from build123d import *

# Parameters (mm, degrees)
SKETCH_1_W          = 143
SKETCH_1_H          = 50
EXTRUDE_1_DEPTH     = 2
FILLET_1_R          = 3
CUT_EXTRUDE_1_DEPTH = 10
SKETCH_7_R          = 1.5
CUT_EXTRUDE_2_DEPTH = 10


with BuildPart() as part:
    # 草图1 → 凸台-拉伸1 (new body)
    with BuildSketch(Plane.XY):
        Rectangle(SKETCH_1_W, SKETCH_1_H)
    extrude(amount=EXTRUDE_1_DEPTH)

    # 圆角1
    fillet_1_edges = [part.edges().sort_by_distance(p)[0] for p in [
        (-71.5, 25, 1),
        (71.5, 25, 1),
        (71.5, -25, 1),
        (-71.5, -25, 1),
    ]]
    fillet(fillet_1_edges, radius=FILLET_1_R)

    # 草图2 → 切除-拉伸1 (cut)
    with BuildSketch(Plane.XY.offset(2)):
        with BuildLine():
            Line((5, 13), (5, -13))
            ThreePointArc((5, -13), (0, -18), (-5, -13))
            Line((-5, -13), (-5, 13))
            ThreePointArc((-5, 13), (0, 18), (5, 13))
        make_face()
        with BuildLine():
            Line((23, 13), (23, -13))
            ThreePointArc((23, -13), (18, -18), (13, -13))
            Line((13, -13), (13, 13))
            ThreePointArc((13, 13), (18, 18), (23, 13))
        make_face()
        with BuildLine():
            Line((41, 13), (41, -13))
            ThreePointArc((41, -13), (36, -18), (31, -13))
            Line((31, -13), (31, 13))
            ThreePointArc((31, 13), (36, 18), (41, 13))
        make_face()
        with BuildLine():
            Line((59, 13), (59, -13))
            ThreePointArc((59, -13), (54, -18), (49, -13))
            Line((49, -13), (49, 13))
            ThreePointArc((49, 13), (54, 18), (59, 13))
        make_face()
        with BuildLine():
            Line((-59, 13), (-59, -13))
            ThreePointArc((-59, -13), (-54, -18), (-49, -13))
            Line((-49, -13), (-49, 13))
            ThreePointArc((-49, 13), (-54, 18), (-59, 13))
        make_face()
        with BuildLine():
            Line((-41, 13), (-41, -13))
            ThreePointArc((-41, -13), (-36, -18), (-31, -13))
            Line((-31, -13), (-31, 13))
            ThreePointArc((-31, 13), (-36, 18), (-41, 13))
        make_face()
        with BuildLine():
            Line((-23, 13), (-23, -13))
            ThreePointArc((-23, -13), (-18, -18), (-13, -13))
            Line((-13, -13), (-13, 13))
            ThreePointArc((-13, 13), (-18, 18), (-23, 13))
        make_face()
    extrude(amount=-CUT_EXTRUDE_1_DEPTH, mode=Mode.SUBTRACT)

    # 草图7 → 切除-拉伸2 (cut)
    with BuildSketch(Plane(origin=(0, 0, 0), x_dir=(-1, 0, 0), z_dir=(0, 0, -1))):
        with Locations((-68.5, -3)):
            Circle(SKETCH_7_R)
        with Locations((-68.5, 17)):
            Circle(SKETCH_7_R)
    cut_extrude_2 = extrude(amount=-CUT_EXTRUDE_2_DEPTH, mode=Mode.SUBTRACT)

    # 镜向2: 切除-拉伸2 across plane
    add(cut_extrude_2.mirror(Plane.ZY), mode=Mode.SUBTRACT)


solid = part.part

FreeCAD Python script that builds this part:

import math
import FreeCAD as App
import Part
import Sketcher
from FreeCAD import Vector


def edges_at(feature, points):
    """Names of the edges that pass closest to the given points."""
    edges = feature.Shape.Edges
    near = lambda p: min(range(len(edges)), key=lambda i: edges[i].distToShape(Part.Vertex(*p))[0])
    return sorted({f"Edge{near(p) + 1}" for p in points})

doc = App.newDocument("Part")
body = doc.addObject("PartDesign::Body", "Body")

sketch1 = body.newObject("Sketcher::SketchObject", "Sketch")
sketch1.AttachmentSupport = (doc.getObject("XY_Plane"), [""])
sketch1.MapMode = "FlatFace"
sketch1.addGeometry(Part.LineSegment(Vector(-72, 25, 0), Vector(-72, -25, 0)), False)
sketch1.addGeometry(Part.LineSegment(Vector(-72, -25, 0), Vector(72, -25, 0)), False)
sketch1.addGeometry(Part.LineSegment(Vector(72, -25, 0), Vector(72, 25, 0)), False)
sketch1.addGeometry(Part.LineSegment(Vector(72, 25, 0), Vector(-72, 25, 0)), False)
sketch1.addConstraint(Sketcher.Constraint("Coincident", 0, 2, 1, 1))
sketch1.addConstraint(Sketcher.Constraint("Coincident", 1, 2, 2, 1))
sketch1.addConstraint(Sketcher.Constraint("Coincident", 2, 2, 3, 1))
sketch1.addConstraint(Sketcher.Constraint("Coincident", 3, 2, 0, 1))
sketch1.addConstraint(Sketcher.Constraint("Vertical", 0))
sketch1.addConstraint(Sketcher.Constraint("Horizontal", 1))
sketch1.addConstraint(Sketcher.Constraint("Vertical", 2))
sketch1.addConstraint(Sketcher.Constraint("Horizontal", 3))
sketch1.addConstraint(Sketcher.Constraint("Symmetric", 0, 2, 2, 2, -1, 1))
sketch1.addConstraint(Sketcher.Constraint("DistanceX", 1, 1, 1, 2, 143.0))
sketch1.addConstraint(Sketcher.Constraint("DistanceY", 0, 2, 0, 1, 50.0))
pad1 = body.newObject("PartDesign::Pad", "Pad")
pad1.Profile = sketch1
pad1.Length = 2
doc.recompute()

fillet = body.newObject("PartDesign::Fillet", "Fillet")
fillet.Base = (pad1, edges_at(pad1, [
    (-71.5, 25, 1),
    (71.5, 25, 1),
    (71.5, -25, 1),
    (-71.5, -25, 1),
]))
fillet.Radius = 3

sketch2 = body.newObject("Sketcher::SketchObject", "Sketch001")
sketch2.AttachmentSupport = (doc.getObject("XY_Plane"), [""])
sketch2.MapMode = "FlatFace"
sketch2.AttachmentOffset = App.Placement(Vector(0, 0, 2), App.Rotation())
sketch2.addGeometry(Part.LineSegment(Vector(5, -13, 0), Vector(5, 13, 0)), False)
sketch2.addGeometry(Part.ArcOfCircle(Part.Circle(Vector(0, 13, 0), Vector(0, 0, 1), 5), math.radians(0), math.radians(180)), False)
sketch2.addGeometry(Part.LineSegment(Vector(-5, 13, 0), Vector(-5, -13, 0)), False)
sketch2.addGeometry(Part.ArcOfCircle(Part.Circle(Vector(0, -13, 0), Vector(0, 0, 1), 5), math.radians(180), math.radians(360)), False)
sketch2.addGeometry(Part.LineSegment(Vector(23, -13, 0), Vector(23, 13, 0)), False)
sketch2.addGeometry(Part.ArcOfCircle(Part.Circle(Vector(18, 13, 0), Vector(0, 0, 1), 5), math.radians(0), math.radians(180)), False)
sketch2.addGeometry(Part.LineSegment(Vector(13, 13, 0), Vector(13, -13, 0)), False)
sketch2.addGeometry(Part.ArcOfCircle(Part.Circle(Vector(18, -13, 0), Vector(0, 0, 1), 5), math.radians(180), math.radians(360)), False)
sketch2.addGeometry(Part.LineSegment(Vector(41, -13, 0), Vector(41, 13, 0)), False)
sketch2.addGeometry(Part.ArcOfCircle(Part.Circle(Vector(36, 13, 0), Vector(0, 0, 1), 5), math.radians(0), math.radians(180)), False)
sketch2.addGeometry(Part.LineSegment(Vector(31, 13, 0), Vector(31, -13, 0)), False)
sketch2.addGeometry(Part.ArcOfCircle(Part.Circle(Vector(36, -13, 0), Vector(0, 0, 1), 5), math.radians(180), math.radians(360)), False)
sketch2.addGeometry(Part.LineSegment(Vector(59, -13, 0), Vector(59, 13, 0)), False)
sketch2.addGeometry(Part.ArcOfCircle(Part.Circle(Vector(54, 13, 0), Vector(0, 0, 1), 5), math.radians(0), math.radians(180)), False)
sketch2.addGeometry(Part.LineSegment(Vector(49, 13, 0), Vector(49, -13, 0)), False)
sketch2.addGeometry(Part.ArcOfCircle(Part.Circle(Vector(54, -13, 0), Vector(0, 0, 1), 5), math.radians(180), math.radians(360)), False)
sketch2.addGeometry(Part.LineSegment(Vector(-59, 13, 0), Vector(-59, -13, 0)), False)
sketch2.addGeometry(Part.ArcOfCircle(Part.Circle(Vector(-54, -13, 0), Vector(0, 0, 1), 5), math.radians(180), math.radians(360)), False)
sketch2.addGeometry(Part.LineSegment(Vector(-49, -13, 0), Vector(-49, 13, 0)), False)
sketch2.addGeometry(Part.ArcOfCircle(Part.Circle(Vector(-54, 13, 0), Vector(0, 0, 1), 5), math.radians(0), math.radians(180)), False)
sketch2.addGeometry(Part.LineSegment(Vector(-41, 13, 0), Vector(-41, -13, 0)), False)
sketch2.addGeometry(Part.ArcOfCircle(Part.Circle(Vector(-36, -13, 0), Vector(0, 0, 1), 5), math.radians(180), math.radians(360)), False)
sketch2.addGeometry(Part.LineSegment(Vector(-31, -13, 0), Vector(-31, 13, 0)), False)
sketch2.addGeometry(Part.ArcOfCircle(Part.Circle(Vector(-36, 13, 0), Vector(0, 0, 1), 5), math.radians(0), math.radians(180)), False)
sketch2.addGeometry(Part.LineSegment(Vector(-23, 13, 0), Vector(-23, -13, 0)), False)
sketch2.addGeometry(Part.ArcOfCircle(Part.Circle(Vector(-18, -13, 0), Vector(0, 0, 1), 5), math.radians(180), math.radians(360)), False)
sketch2.addGeometry(Part.LineSegment(Vector(-13, -13, 0), Vector(-13, 13, 0)), False)
sketch2.addGeometry(Part.ArcOfCircle(Part.Circle(Vector(-18, 13, 0), Vector(0, 0, 1), 5), math.radians(0), math.radians(180)), False)
sketch2.addConstraint(Sketcher.Constraint("Tangent", 0, 2, 1, 1))
sketch2.addConstraint(Sketcher.Constraint("Tangent", 1, 2, 2, 1))
sketch2.addConstraint(Sketcher.Constraint("Tangent", 2, 2, 3, 1))
sketch2.addConstraint(Sketcher.Constraint("Tangent", 3, 2, 0, 1))
sketch2.addConstraint(Sketcher.Constraint("Tangent", 4, 2, 5, 1))
sketch2.addConstraint(Sketcher.Constraint("Tangent", 5, 2, 6, 1))
sketch2.addConstraint(Sketcher.Constraint("Tangent", 6, 2, 7, 1))
sketch2.addConstraint(Sketcher.Constraint("Tangent", 7, 2, 4, 1))
sketch2.addConstraint(Sketcher.Constraint("Tangent", 8, 2, 9, 1))
sketch2.addConstraint(Sketcher.Constraint("Tangent", 9, 2, 10, 1))
sketch2.addConstraint(Sketcher.Constraint("Tangent", 10, 2, 11, 1))
sketch2.addConstraint(Sketcher.Constraint("Tangent", 11, 2, 8, 1))
sketch2.addConstraint(Sketcher.Constraint("Tangent", 12, 2, 13, 1))
sketch2.addConstraint(Sketcher.Constraint("Tangent", 13, 2, 14, 1))
sketch2.addConstraint(Sketcher.Constraint("Tangent", 14, 2, 15, 1))
sketch2.addConstraint(Sketcher.Constraint("Tangent", 15, 2, 12, 1))
sketch2.addConstraint(Sketcher.Constraint("Tangent", 16, 2, 17, 1))
sketch2.addConstraint(Sketcher.Constraint("Tangent", 17, 2, 18, 1))
sketch2.addConstraint(Sketcher.Constraint("Tangent", 18, 2, 19, 1))
sketch2.addConstraint(Sketcher.Constraint("Tangent", 19, 2, 16, 1))
sketch2.addConstraint(Sketcher.Constraint("Tangent", 20, 2, 21, 1))
sketch2.addConstraint(Sketcher.Constraint("Tangent", 21, 2, 22, 1))
sketch2.addConstraint(Sketcher.Constraint("Tangent", 22, 2, 23, 1))
sketch2.addConstraint(Sketcher.Constraint("Tangent", 23, 2, 20, 1))
sketch2.addConstraint(Sketcher.Constraint("Tangent", 24, 2, 25, 1))
sketch2.addConstraint(Sketcher.Constraint("Tangent", 25, 2, 26, 1))
sketch2.addConstraint(Sketcher.Constraint("Tangent", 26, 2, 27, 1))
sketch2.addConstraint(Sketcher.Constraint("Tangent", 27, 2, 24, 1))
sketch2.addConstraint(Sketcher.Constraint("Vertical", 0))
sketch2.addConstraint(Sketcher.Constraint("Vertical", 2))
sketch2.addConstraint(Sketcher.Constraint("Vertical", 4))
sketch2.addConstraint(Sketcher.Constraint("Vertical", 6))
sketch2.addConstraint(Sketcher.Constraint("Vertical", 8))
sketch2.addConstraint(Sketcher.Constraint("Vertical", 10))
sketch2.addConstraint(Sketcher.Constraint("Vertical", 12))
sketch2.addConstraint(Sketcher.Constraint("Vertical", 14))
sketch2.addConstraint(Sketcher.Constraint("Vertical", 16))
sketch2.addConstraint(Sketcher.Constraint("Vertical", 18))
sketch2.addConstraint(Sketcher.Constraint("Vertical", 20))
sketch2.addConstraint(Sketcher.Constraint("Vertical", 22))
sketch2.addConstraint(Sketcher.Constraint("Vertical", 24))
sketch2.addConstraint(Sketcher.Constraint("Vertical", 26))
sketch2.addConstraint(Sketcher.Constraint("Equal", 3, 5))
sketch2.addConstraint(Sketcher.Constraint("Equal", 7, 9))
sketch2.addConstraint(Sketcher.Constraint("Equal", 11, 13))
sketch2.addConstraint(Sketcher.Constraint("Equal", 15, 17))
sketch2.addConstraint(Sketcher.Constraint("Equal", 19, 21))
sketch2.addConstraint(Sketcher.Constraint("Equal", 23, 25))
sketch2.addConstraint(Sketcher.Constraint("Symmetric", 1, 3, 3, 3, -1, 1))
sketch2.addConstraint(Sketcher.Constraint("Symmetric", 13, 3, 17, 3, -1, 1))
sketch2.addConstraint(Sketcher.Constraint("Symmetric", 9, 3, 21, 3, -1, 1))
sketch2.addConstraint(Sketcher.Constraint("Symmetric", 5, 3, 25, 3, -1, 1))
sketch2.addConstraint(Sketcher.Constraint("Horizontal", 1, 3, 5, 3))
sketch2.addConstraint(Sketcher.Constraint("Horizontal", 3, 3, 7, 3))
sketch2.addConstraint(Sketcher.Constraint("Horizontal", 5, 3, 9, 3))
sketch2.addConstraint(Sketcher.Constraint("Horizontal", 7, 3, 11, 3))
sketch2.addConstraint(Sketcher.Constraint("Horizontal", 9, 3, 13, 3))
sketch2.addConstraint(Sketcher.Constraint("Horizontal", 11, 3, 15, 3))
sketch2.addConstraint(Sketcher.Constraint("Horizontal", 13, 3, 19, 3))
sketch2.addConstraint(Sketcher.Constraint("Horizontal", 19, 3, 23, 3))
sketch2.addConstraint(Sketcher.Constraint("Horizontal", 23, 3, 27, 3))
sketch2.addConstraint(Sketcher.Constraint("Radius", 1, 5.0))
sketch2.addConstraint(Sketcher.Constraint("DistanceY", 0, 1, 0, 2, 26.0))
sketch2.addConstraint(Sketcher.Constraint("DistanceX", -1, 1, 5, 3, 18.0))
sketch2.addConstraint(Sketcher.Constraint("DistanceX", -1, 1, 9, 3, 36.0))
sketch2.addConstraint(Sketcher.Constraint("DistanceX", -1, 1, 13, 3, 54.0))
pocket1 = body.newObject("PartDesign::Pocket", "Pocket")
pocket1.Profile = sketch2
pocket1.Length = 10

sketch3 = body.newObject("Sketcher::SketchObject", "Sketch002")
sketch3.AttachmentSupport = (doc.getObject("XY_Plane"), [""])
sketch3.MapMode = "FlatFace"
sketch3.addGeometry(Part.Circle(Vector(68.5, -3, 0), Vector(0, 0, 1), 1.5), False)
sketch3.addGeometry(Part.Circle(Vector(68.5, 17, 0), Vector(0, 0, 1), 1.5), False)
sketch3.addConstraint(Sketcher.Constraint("Equal", 0, 1))
sketch3.addConstraint(Sketcher.Constraint("Vertical", 0, 3, 1, 3))
sketch3.addConstraint(Sketcher.Constraint("Diameter", 0, 3.0))
sketch3.addConstraint(Sketcher.Constraint("DistanceY", 0, 3, -1, 1, 3.0))
sketch3.addConstraint(Sketcher.Constraint("DistanceY", -1, 1, 1, 3, 17.0))
sketch3.addConstraint(Sketcher.Constraint("DistanceX", -1, 1, 0, 3, 68.5))
pocket2 = body.newObject("PartDesign::Pocket", "Pocket001")
pocket2.Profile = sketch3
pocket2.Length = 10
pocket2.Reversed = True
doc.recompute()

mirrored = body.newObject("PartDesign::Mirrored", "Mirrored")
mirrored.Originals = [pocket2]
mirrored.MirrorPlane = (doc.getObject("YZ_Plane"), [""])
body.Tip = mirrored

doc.recompute()
